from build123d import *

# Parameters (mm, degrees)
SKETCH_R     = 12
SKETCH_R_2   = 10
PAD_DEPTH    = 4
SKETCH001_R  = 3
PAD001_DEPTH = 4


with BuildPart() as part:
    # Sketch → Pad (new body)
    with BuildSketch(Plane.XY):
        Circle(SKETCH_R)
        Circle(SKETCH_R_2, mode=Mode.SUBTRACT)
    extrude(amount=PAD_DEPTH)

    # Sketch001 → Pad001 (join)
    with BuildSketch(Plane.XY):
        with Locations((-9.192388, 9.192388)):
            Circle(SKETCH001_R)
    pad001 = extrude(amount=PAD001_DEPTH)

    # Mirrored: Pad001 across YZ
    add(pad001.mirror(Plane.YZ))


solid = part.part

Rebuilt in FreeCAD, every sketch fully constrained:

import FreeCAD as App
import Part
import Sketcher
from FreeCAD import Vector
Q = App.Units.Quantity

doc = App.newDocument("Part")
body = doc.addObject("PartDesign::Body", "Body")

# Sketch on XY plane
sketch1 = body.newObject("Sketcher::SketchObject", "Sketch")
sketch1.AttachmentSupport = (doc.getObject("XY_Plane"), [""])
sketch1.MapMode = "FlatFace"
sketch1.addGeometry(Part.Circle(Vector(0, 0, 0), Vector(0, 0, 1), 12), False)
sketch1.addGeometry(Part.Circle(Vector(0, 0, 0), Vector(0, 0, 1), 10), False)
sketch1.addConstraint(Sketcher.Constraint("Coincident", 0, 3, -1, 1))
sketch1.addConstraint(Sketcher.Constraint("Coincident", 1, 3, -1, 1))
sketch1.addConstraint(Sketcher.Constraint("Diameter", 0, Q("24 mm")))
sketch1.addConstraint(Sketcher.Constraint("Diameter", 1, Q("20 mm")))
pad1 = body.newObject("PartDesign::Pad", "Pad")
pad1.Profile = sketch1
pad1.Length = 4

# Sketch on XY plane
sketch2 = body.newObject("Sketcher::SketchObject", "Sketch001")
sketch2.AttachmentSupport = (doc.getObject("XY_Plane"), [""])
sketch2.MapMode = "FlatFace"
sketch2.addGeometry(Part.Circle(Vector(-9.2, 9.2, 0), Vector(0, 0, 1), 3), False)
sketch2.addConstraint(Sketcher.Constraint("Diameter", 0, Q("6 mm")))
sketch2.addConstraint(Sketcher.Constraint("DistanceX", 0, 3, -1, 1, Q("9.192388 mm")))
sketch2.addConstraint(Sketcher.Constraint("DistanceY", -1, 1, 0, 3, Q("9.192388 mm")))
pad2 = body.newObject("PartDesign::Pad", "Pad001")
pad2.Profile = sketch2
pad2.Length = 4
doc.recompute()

mirrored = body.newObject("PartDesign::Mirrored", "Mirrored")
mirrored.Originals = [pad2]
mirrored.MirrorPlane = (doc.getObject("YZ_Plane"), [""])
body.Tip = mirrored

doc.recompute()
